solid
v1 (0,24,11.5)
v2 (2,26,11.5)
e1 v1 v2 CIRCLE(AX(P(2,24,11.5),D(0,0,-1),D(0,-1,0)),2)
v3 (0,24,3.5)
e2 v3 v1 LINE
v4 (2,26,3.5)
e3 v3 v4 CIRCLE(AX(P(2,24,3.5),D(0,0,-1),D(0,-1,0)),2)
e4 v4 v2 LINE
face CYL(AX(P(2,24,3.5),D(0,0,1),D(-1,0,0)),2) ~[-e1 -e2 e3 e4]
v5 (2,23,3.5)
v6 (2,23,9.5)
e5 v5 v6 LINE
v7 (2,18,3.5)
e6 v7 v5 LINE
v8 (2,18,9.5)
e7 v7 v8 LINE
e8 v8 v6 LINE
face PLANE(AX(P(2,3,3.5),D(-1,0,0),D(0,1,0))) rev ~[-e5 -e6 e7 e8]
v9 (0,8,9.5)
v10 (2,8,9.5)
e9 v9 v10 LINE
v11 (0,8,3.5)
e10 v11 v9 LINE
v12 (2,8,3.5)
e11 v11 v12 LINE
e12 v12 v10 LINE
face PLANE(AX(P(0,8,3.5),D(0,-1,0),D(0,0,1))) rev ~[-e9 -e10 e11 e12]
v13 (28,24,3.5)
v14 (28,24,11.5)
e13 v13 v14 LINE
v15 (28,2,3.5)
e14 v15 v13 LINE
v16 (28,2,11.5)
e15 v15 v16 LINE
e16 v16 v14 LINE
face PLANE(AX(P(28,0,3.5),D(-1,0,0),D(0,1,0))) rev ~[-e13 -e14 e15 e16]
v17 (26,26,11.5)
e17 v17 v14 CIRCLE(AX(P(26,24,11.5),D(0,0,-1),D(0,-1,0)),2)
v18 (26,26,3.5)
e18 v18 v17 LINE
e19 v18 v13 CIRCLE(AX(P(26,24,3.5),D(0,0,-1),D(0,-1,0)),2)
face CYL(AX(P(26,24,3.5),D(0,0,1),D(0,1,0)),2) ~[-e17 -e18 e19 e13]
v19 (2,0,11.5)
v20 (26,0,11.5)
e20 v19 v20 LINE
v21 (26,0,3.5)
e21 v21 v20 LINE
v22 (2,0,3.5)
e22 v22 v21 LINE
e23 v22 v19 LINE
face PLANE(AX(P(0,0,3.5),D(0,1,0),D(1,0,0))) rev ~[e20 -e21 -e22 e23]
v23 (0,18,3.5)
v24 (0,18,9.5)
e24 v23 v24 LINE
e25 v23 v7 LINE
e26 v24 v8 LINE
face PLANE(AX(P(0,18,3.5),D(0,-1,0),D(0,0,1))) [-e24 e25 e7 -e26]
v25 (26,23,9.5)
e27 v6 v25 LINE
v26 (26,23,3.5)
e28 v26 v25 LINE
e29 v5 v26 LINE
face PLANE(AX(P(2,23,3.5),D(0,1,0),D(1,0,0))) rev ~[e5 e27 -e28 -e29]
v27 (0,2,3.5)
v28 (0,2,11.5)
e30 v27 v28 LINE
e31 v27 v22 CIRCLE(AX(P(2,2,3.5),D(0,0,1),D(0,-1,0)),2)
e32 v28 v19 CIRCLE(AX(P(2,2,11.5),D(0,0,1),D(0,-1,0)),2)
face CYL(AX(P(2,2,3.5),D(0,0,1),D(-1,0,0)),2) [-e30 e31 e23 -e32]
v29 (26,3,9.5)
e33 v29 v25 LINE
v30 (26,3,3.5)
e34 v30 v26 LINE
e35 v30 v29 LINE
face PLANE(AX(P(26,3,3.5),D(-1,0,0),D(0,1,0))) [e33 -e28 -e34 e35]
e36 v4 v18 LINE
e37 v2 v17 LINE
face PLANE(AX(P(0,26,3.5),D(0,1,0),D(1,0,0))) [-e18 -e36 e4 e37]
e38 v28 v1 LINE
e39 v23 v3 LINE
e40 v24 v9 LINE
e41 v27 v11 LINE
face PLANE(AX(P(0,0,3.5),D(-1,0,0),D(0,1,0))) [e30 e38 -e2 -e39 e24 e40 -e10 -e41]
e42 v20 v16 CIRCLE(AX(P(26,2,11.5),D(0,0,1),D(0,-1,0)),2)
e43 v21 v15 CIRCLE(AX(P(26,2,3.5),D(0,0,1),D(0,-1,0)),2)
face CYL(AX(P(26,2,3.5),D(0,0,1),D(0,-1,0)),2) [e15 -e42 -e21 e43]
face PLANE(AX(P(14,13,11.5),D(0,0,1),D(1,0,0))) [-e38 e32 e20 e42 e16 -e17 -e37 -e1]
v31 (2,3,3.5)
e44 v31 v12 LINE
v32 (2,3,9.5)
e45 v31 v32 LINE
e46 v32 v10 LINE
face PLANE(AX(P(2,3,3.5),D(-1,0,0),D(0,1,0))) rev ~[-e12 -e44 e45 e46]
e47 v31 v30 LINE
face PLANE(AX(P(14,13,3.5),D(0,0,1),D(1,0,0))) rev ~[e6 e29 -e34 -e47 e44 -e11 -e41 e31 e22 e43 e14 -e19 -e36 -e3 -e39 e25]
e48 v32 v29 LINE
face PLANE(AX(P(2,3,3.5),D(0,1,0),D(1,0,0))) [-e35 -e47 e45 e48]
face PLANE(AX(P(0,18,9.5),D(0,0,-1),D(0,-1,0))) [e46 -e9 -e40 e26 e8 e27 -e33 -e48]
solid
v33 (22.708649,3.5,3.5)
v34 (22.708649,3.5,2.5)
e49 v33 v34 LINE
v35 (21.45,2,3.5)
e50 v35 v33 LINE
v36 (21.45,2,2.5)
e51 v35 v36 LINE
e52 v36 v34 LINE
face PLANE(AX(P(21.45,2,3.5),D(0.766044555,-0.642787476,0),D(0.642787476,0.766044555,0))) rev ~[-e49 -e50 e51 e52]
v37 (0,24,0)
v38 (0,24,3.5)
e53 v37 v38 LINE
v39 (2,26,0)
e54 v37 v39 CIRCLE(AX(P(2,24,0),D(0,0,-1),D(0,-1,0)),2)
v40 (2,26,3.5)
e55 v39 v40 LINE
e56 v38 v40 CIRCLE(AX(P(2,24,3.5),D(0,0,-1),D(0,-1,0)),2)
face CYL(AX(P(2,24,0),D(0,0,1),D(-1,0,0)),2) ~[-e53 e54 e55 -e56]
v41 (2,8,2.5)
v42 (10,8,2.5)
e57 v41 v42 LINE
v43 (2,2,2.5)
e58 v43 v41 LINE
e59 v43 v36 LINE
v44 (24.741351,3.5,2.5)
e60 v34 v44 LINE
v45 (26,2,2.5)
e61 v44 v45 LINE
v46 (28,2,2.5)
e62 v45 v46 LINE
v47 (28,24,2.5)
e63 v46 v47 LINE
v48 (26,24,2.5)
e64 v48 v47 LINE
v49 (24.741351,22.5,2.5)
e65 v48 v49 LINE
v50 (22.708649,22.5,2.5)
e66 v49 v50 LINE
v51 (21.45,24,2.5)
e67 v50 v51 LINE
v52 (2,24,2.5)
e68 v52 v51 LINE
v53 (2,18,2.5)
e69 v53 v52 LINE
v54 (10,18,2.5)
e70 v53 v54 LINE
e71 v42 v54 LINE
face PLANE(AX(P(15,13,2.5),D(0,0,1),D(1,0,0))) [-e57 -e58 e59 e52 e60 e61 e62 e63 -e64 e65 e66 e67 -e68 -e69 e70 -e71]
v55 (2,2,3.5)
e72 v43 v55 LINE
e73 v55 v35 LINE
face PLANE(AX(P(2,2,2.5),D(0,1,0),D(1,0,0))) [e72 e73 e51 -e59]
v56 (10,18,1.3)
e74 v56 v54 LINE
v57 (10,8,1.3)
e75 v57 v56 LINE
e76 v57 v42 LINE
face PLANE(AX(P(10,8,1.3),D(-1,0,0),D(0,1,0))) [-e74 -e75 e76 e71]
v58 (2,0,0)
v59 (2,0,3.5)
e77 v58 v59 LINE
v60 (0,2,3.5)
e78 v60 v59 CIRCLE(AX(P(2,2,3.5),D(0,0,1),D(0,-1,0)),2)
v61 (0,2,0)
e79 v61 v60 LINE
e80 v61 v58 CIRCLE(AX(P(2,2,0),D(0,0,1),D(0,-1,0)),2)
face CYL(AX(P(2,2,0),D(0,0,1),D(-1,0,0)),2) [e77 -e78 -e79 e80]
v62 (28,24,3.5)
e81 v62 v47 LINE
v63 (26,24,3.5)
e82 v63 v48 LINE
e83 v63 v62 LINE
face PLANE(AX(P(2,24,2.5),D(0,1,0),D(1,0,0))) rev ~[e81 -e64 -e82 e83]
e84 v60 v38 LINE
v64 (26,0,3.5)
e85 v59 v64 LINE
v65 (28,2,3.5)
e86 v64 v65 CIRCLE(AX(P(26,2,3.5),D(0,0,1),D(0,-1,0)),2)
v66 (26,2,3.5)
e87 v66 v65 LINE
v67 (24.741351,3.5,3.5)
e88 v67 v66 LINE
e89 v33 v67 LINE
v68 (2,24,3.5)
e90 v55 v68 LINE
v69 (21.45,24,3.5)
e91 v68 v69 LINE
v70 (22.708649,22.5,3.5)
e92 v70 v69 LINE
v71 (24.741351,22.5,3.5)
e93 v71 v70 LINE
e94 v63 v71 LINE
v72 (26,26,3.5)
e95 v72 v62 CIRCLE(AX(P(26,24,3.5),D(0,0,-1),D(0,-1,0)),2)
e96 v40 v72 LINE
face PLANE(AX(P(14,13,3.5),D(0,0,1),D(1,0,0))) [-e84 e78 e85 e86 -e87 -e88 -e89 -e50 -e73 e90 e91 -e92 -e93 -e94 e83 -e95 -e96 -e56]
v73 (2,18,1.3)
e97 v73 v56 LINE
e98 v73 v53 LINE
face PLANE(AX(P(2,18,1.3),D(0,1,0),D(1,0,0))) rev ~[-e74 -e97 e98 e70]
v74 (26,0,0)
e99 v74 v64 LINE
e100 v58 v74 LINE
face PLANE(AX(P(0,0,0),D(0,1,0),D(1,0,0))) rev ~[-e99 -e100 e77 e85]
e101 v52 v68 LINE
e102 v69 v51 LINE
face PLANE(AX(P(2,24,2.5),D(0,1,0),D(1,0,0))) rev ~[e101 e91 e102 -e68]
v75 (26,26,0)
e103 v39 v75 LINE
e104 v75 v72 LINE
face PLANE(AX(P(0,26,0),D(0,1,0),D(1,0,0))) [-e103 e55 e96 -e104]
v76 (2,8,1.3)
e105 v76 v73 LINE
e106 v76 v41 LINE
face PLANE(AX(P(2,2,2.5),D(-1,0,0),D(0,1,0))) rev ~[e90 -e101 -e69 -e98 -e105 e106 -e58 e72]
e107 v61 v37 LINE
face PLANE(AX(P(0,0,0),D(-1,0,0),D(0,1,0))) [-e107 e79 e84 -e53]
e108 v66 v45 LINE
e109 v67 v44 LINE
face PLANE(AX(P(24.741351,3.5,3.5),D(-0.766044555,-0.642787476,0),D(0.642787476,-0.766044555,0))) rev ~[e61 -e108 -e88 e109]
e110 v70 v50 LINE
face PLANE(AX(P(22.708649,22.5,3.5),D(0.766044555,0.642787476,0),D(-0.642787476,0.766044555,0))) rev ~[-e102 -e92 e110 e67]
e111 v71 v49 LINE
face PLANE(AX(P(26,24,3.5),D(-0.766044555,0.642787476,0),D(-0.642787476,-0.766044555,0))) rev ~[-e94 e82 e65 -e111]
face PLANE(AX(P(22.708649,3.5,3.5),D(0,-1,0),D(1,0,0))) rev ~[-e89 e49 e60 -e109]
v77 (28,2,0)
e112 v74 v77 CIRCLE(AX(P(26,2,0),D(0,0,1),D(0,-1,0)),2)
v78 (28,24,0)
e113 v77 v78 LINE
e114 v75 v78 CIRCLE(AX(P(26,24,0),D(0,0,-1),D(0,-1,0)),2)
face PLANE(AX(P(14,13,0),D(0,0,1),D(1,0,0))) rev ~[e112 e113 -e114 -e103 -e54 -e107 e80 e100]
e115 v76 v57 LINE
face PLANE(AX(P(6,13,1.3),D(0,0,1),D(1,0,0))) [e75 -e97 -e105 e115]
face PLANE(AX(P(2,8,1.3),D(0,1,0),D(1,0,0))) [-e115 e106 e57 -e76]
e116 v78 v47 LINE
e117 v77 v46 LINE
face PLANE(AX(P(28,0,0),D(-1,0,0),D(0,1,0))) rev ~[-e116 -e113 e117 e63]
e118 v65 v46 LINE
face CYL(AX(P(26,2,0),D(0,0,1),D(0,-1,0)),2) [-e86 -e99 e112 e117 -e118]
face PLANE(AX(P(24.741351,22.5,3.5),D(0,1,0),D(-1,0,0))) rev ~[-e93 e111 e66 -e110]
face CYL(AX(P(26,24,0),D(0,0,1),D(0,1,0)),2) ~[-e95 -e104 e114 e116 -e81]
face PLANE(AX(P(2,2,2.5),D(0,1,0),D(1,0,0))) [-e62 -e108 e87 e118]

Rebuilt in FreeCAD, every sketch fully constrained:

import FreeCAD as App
import Part
import Sketcher

V = App.Vector
Q = App.Units.Quantity


def edges_at(feature, points):
    """Names of the edges that pass closest to the given points."""
    edges = feature.Shape.Edges
    near = lambda p: min(range(len(edges)), key=lambda i: edges[i].distToShape(Part.Vertex(*p))[0])
    return sorted({f"Edge{near(p) + 1}" for p in points})

doc = App.newDocument("Part")
body = doc.addObject("PartDesign::Body", "Body")

# Sketch on XY plane
sketch1 = body.newObject("Sketcher::SketchObject", "Sketch")
sketch1.AttachmentSupport = (doc.getObject("XY_Plane"), [""])
sketch1.MapMode = "FlatFace"
sketch1.AttachmentOffset = App.Placement(V(0, 0, 3.5), App.Rotation())
sketch1.addGeometry([
    Part.LineSegment(V(2, 23, 0), V(2, 3, 0)),
    Part.LineSegment(V(2, 3, 0), V(26, 3, 0)),
    Part.LineSegment(V(26, 3, 0), V(26, 23, 0)),
    Part.LineSegment(V(26, 23, 0), V(2, 23, 0)),
], False)
sketch1.addConstraint([
    Sketcher.Constraint("Coincident", 0, 2, 1, 1),
    Sketcher.Constraint("Coincident", 1, 2, 2, 1),
    Sketcher.Constraint("Coincident", 2, 2, 3, 1),
    Sketcher.Constraint("Coincident", 3, 2, 0, 1),
    Sketcher.Constraint("Vertical", 0),
    Sketcher.Constraint("Horizontal", 1),
    Sketcher.Constraint("Vertical", 2),
    Sketcher.Constraint("Horizontal", 3),
    Sketcher.Constraint("DistanceX", 1, 1, 1, 2, Q("24 mm")),
    Sketcher.Constraint("DistanceY", 0, 2, 0, 1, Q("20 mm")),
    Sketcher.Constraint("DistanceX", -1, 1, 0, 2, Q("2 mm")),
    Sketcher.Constraint("DistanceY", -1, 1, 0, 2, Q("3 mm")),
])
pad1 = body.newObject("PartDesign::Pad", "Pad")
pad1.Profile = sketch1
pad1.Length = 6
body2 = doc.addObject("PartDesign::Body", "Body001")

# Sketch on XY plane
sketch2 = body2.newObject("Sketcher::SketchObject", "Sketch001")
sketch2.AttachmentSupport = (doc.getObject("XY_Plane001"), [""])
sketch2.MapMode = "FlatFace"
sketch2.AttachmentOffset = App.Placement(V(0, 0, 3.5), App.Rotation())
sketch2.addGeometry([
    Part.LineSegment(V(0, 26, 0), V(0, 0, 0)),
    Part.LineSegment(V(0, 0, 0), V(28, 0, 0)),
    Part.LineSegment(V(28, 0, 0), V(28, 26, 0)),
    Part.LineSegment(V(28, 26, 0), V(0, 26, 0)),
], False)
sketch2.addConstraint([
    Sketcher.Constraint("Coincident", 0, 2, 1, 1),
    Sketcher.Constraint("Coincident", 1, 2, 2, 1),
    Sketcher.Constraint("Coincident", 2, 2, 3, 1),
    Sketcher.Constraint("Coincident", 3, 2, 0, 1),
    Sketcher.Constraint("Vertical", 0),
    Sketcher.Constraint("Horizontal", 1),
    Sketcher.Constraint("Vertical", 2),
    Sketcher.Constraint("Horizontal", 3),
    Sketcher.Constraint("Coincident", 0, 2, -1, 1),
    Sketcher.Constraint("DistanceX", 1, 1, 1, 2, Q("28 mm")),
    Sketcher.Constraint("DistanceY", 0, 2, 0, 1, Q("26 mm")),
])
pad2 = body2.newObject("PartDesign::Pad", "Pad001")
pad2.Profile = sketch2
pad2.Length = 8
doc.recompute()

boolean = body2.newObject("PartDesign::Boolean", "Boolean")
boolean.Type = "Cut"
boolean.addObjects([body])

# Sketch on YZ plane
sketch3 = body2.newObject("Sketcher::SketchObject", "Sketch002")
sketch3.AttachmentSupport = (doc.getObject("YZ_Plane001"), [""])
sketch3.MapMode = "FlatFace"
sketch3.addGeometry([
    Part.LineSegment(V(18, 10, 0), V(18, 4, 0)),
    Part.LineSegment(V(18, 4, 0), V(8, 4, 0)),
    Part.LineSegment(V(8, 4, 0), V(8, 10, 0)),
    Part.LineSegment(V(8, 10, 0), V(18, 10, 0)),
], False)
sketch3.addConstraint([
    Sketcher.Constraint("Coincident", 0, 2, 1, 1),
    Sketcher.Constraint("Coincident", 1, 2, 2, 1),
    Sketcher.Constraint("Coincident", 2, 2, 3, 1),
    Sketcher.Constraint("Coincident", 3, 2, 0, 1),
    Sketcher.Constraint("Vertical", 0),
    Sketcher.Constraint("Horizontal", 1),
    Sketcher.Constraint("Vertical", 2),
    Sketcher.Constraint("Horizontal", 3),
    Sketcher.Constraint("DistanceX", 1, 2, 1, 1, Q("10 mm")),
    Sketcher.Constraint("DistanceY", 0, 2, 0, 1, Q("6 mm")),
    Sketcher.Constraint("DistanceX", -1, 1, 0, 2, Q("18 mm")),
    Sketcher.Constraint("DistanceY", -1, 1, 0, 2, Q("3.5 mm")),
])
pocket1 = body2.newObject("PartDesign::Pocket", "Pocket")
pocket1.Profile = sketch3
pocket1.Length = 2
pocket1.Reversed = True
doc.recompute()

fillet = body2.newObject("PartDesign::Fillet", "Fillet")
fillet.Base = (pocket1, edges_at(pocket1, [
    (28, 26, 7.5),
    (0, 26, 7.5),
    (28, 0, 7.5),
    (0, 0, 7.5),
]))
fillet.Radius = 2
body3 = doc.addObject("PartDesign::Body", "Body002")

# Sketch on XY plane
sketch4 = body3.newObject("Sketcher::SketchObject", "Sketch003")
sketch4.AttachmentSupport = (doc.getObject("XY_Plane002"), [""])
sketch4.MapMode = "FlatFace"
sketch4.AttachmentOffset = App.Placement(V(0, 0, 1.3), App.Rotation())
sketch4.addGeometry([
    Part.LineSegment(V(2, 18, 0), V(2, 8, 0)),
    Part.LineSegment(V(2, 8, 0), V(10, 8, 0)),
    Part.LineSegment(V(10, 8, 0), V(10, 18, 0)),
    Part.LineSegment(V(10, 18, 0), V(2, 18, 0)),
], False)
sketch4.addConstraint([
    Sketcher.Constraint("Coincident", 0, 2, 1, 1),
    Sketcher.Constraint("Coincident", 1, 2, 2, 1),
    Sketcher.Constraint("Coincident", 2, 2, 3, 1),
    Sketcher.Constraint("Coincident", 3, 2, 0, 1),
    Sketcher.Constraint("Vertical", 0),
    Sketcher.Constraint("Horizontal", 1),
    Sketcher.Constraint("Vertical", 2),
    Sketcher.Constraint("Horizontal", 3),
    Sketcher.Constraint("DistanceX", 1, 1, 1, 2, Q("8 mm")),
    Sketcher.Constraint("DistanceY", 0, 2, 0, 1, Q("10 mm")),
    Sketcher.Constraint("DistanceX", -1, 1, 0, 2, Q("2 mm")),
    Sketcher.Constraint("DistanceY", -1, 1, 0, 2, Q("8 mm")),
])
pad3 = body3.newObject("PartDesign::Pad", "Pad002")
pad3.Profile = sketch4
pad3.Length = 1.2
body4 = doc.addObject("PartDesign::Body", "Body003")

# Sketch on XY plane
sketch5 = body4.newObject("Sketcher::SketchObject", "Sketch004")
sketch5.AttachmentSupport = (doc.getObject("XY_Plane003"), [""])
sketch5.MapMode = "FlatFace"
sketch5.AttachmentOffset = App.Placement(V(0, 0, 2.5), App.Rotation())
sketch5.addGeometry([
    Part.LineSegment(V(2, 24, 0), V(2, 2, 0)),
    Part.LineSegment(V(2, 2, 0), V(28, 2, 0)),
    Part.LineSegment(V(28, 2, 0), V(28, 24, 0)),
    Part.LineSegment(V(28, 24, 0), V(2, 24, 0)),
], False)
sketch5.addConstraint([
    Sketcher.Constraint("Coincident", 0, 2, 1, 1),
    Sketcher.Constraint("Coincident", 1, 2, 2, 1),
    Sketcher.Constraint("Coincident", 2, 2, 3, 1),
    Sketcher.Constraint("Coincident", 3, 2, 0, 1),
    Sketcher.Constraint("Vertical", 0),
    Sketcher.Constraint("Horizontal", 1),
    Sketcher.Constraint("Vertical", 2),
    Sketcher.Constraint("Horizontal", 3),
    Sketcher.Constraint("DistanceX", 1, 1, 1, 2, Q("26 mm")),
    Sketcher.Constraint("DistanceY", 0, 2, 0, 1, Q("22 mm")),
    Sketcher.Constraint("DistanceX", -1, 1, 0, 2, Q("2 mm")),
    Sketcher.Constraint("DistanceY", -1, 1, 0, 2, Q("2 mm")),
])
pad4 = body4.newObject("PartDesign::Pad", "Pad003")
pad4.Profile = sketch5
pad4.Length = 1

# Sketch on XY plane
sketch6 = body4.newObject("Sketcher::SketchObject", "Sketch005")
sketch6.AttachmentSupport = (doc.getObject("XY_Plane003"), [""])
sketch6.MapMode = "FlatFace"
sketch6.AttachmentOffset = App.Placement(V(0, 0, 3.5), App.Rotation())
sketch6.addGeometry([
    Part.LineSegment(V(24.7, 22.5, 0), V(26, 24, 0)),  # 0
    Part.LineSegment(V(26, 24, 0), V(21.4, 24, 0)),  # 1
    Part.LineSegment(V(21.4, 24, 0), V(22.7, 22.5, 0)),  # 2
    Part.LineSegment(V(22.7, 22.5, 0), V(24.7, 22.5, 0)),  # 3
    Part.LineSegment(V(22.7, 3.5, 0), V(21.4, 2, 0)),  # 4
    Part.LineSegment(V(21.4, 2, 0), V(26, 2, 0)),  # 5
    Part.LineSegment(V(26, 2, 0), V(24.7, 3.5, 0)),  # 6
    Part.LineSegment(V(24.7, 3.5, 0), V(22.7, 3.5, 0)),  # 7
], False)
sketch6.addConstraint([
    Sketcher.Constraint("Coincident", 0, 2, 1, 1),
    Sketcher.Constraint("Coincident", 1, 2, 2, 1),
    Sketcher.Constraint("Coincident", 2, 2, 3, 1),
    Sketcher.Constraint("Coincident", 3, 2, 0, 1),
    Sketcher.Constraint("Coincident", 4, 2, 5, 1),
    Sketcher.Constraint("Coincident", 5, 2, 6, 1),
    Sketcher.Constraint("Coincident", 6, 2, 7, 1),
    Sketcher.Constraint("Coincident", 7, 2, 4, 1),
    Sketcher.Constraint("Horizontal", 1),
    Sketcher.Constraint("Horizontal", 3),
    Sketcher.Constraint("Horizontal", 5),
    Sketcher.Constraint("Horizontal", 7),
    Sketcher.Constraint("Parallel", 0, 4),
    Sketcher.Constraint("Parallel", 2, 6),
    Sketcher.Constraint("Vertical", 1, 2, 4, 2),
    Sketcher.Constraint("Vertical", 0, 2, 5, 2),
    Sketcher.Constraint("Vertical", 3, 2, 6, 2),
    Sketcher.Constraint("Vertical", 2, 2, 7, 2),
    Sketcher.Constraint("Angle", 0, Q("50.00001 deg")),
    Sketcher.Constraint("DistanceX", -1, 1, 0, 2, Q("26 mm")),
    Sketcher.Constraint("DistanceY", -1, 1, 0, 2, Q("24 mm")),
    Sketcher.Constraint("DistanceY", -1, 1, 4, 2, Q("2 mm")),
    Sketcher.Constraint("DistanceY", 6, 2, 3, 2, Q("19 mm")),
    Sketcher.Constraint("DistanceX", 1, 2, 1, 1, Q("4.55 mm")),
])
pocket2 = body4.newObject("PartDesign::Pocket", "Pocket001")
pocket2.Profile = sketch6
pocket2.Length = 1
body5 = doc.addObject("PartDesign::Body", "Body004")

# Sketch on XY plane
sketch7 = body5.newObject("Sketcher::SketchObject", "Sketch006")
sketch7.AttachmentSupport = (doc.getObject("XY_Plane004"), [""])
sketch7.MapMode = "FlatFace"
sketch7.addGeometry([
    Part.LineSegment(V(0, 26, 0), V(0, 0, 0)),
    Part.LineSegment(V(0, 0, 0), V(28, 0, 0)),
    Part.LineSegment(V(28, 0, 0), V(28, 26, 0)),
    Part.LineSegment(V(28, 26, 0), V(0, 26, 0)),
], False)
sketch7.addConstraint([
    Sketcher.Constraint("Coincident", 0, 2, 1, 1),
    Sketcher.Constraint("Coincident", 1, 2, 2, 1),
    Sketcher.Constraint("Coincident", 2, 2, 3, 1),
    Sketcher.Constraint("Coincident", 3, 2, 0, 1),
    Sketcher.Constraint("Vertical", 0),
    Sketcher.Constraint("Horizontal", 1),
    Sketcher.Constraint("Vertical", 2),
    Sketcher.Constraint("Horizontal", 3),
    Sketcher.Constraint("Coincident", 0, 2, -1, 1),
    Sketcher.Constraint("DistanceX", 1, 1, 1, 2, Q("28 mm")),
    Sketcher.Constraint("DistanceY", 0, 2, 0, 1, Q("26 mm")),
])
pad5 = body5.newObject("PartDesign::Pad", "Pad004")
pad5.Profile = sketch7
pad5.Length = 3.5
doc.recompute()

boolean2 = body5.newObject("PartDesign::Boolean", "Boolean001")
boolean2.Type = "Cut"
boolean2.addObjects([body4])
doc.recompute()

boolean3 = body5.newObject("PartDesign::Boolean", "Boolean002")
boolean3.Type = "Cut"
boolean3.addObjects([body3])
doc.recompute()

fillet2 = body5.newObject("PartDesign::Fillet", "Fillet001")
fillet2.Base = (boolean3, edges_at(boolean3, [
    (28, 26, 1.75),
    (28, 0, 1.75),
    (0, 0, 1.75),
    (0, 26, 1.75),
]))
fillet2.Radius = 2

doc.recompute()
